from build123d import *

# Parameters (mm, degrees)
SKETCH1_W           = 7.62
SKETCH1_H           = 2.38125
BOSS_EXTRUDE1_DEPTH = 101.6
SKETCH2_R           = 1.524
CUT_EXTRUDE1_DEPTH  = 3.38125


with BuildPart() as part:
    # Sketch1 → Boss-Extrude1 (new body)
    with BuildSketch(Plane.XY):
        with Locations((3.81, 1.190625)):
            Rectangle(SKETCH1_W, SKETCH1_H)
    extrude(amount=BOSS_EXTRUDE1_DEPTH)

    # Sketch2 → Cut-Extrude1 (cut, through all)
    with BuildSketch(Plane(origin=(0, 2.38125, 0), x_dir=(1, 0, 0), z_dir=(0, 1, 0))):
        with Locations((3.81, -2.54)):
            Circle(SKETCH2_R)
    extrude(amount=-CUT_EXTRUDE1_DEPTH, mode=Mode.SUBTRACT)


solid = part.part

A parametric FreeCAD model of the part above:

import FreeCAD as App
import Part
import Sketcher
Q = App.Units.Quantity


def add_polygon(sketch, points):
    """Adds a closed chain of lines whose ends are joined by coincident constraints."""
    first, n = sketch.GeometryCount, len(points)
    for a, b in zip(points, points[1:] + points[:1]):
        sketch.addGeometry(Part.LineSegment(App.Vector(*a, 0), App.Vector(*b, 0)), False)
    for i in range(n):
        sketch.addConstraint(Sketcher.Constraint("Coincident", first + i, 2, first + (i + 1) % n, 1))

doc = App.newDocument("Part")
body = doc.addObject("PartDesign::Body", "Body")

# Sketch on XY plane
sketch1 = body.newObject("Sketcher::SketchObject", "Sketch")
sketch1.AttachmentSupport = (doc.getObject("XY_Plane"), [""])
sketch1.MapMode = "FlatFace"
add_polygon(sketch1, [(0, 2.4), (0, 0), (7.6, 0), (7.6, 2.4)])  # lines 0-3
sketch1.addConstraint([
    Sketcher.Constraint("Vertical", 0),
    Sketcher.Constraint("Horizontal", 1),
    Sketcher.Constraint("Vertical", 2),
    Sketcher.Constraint("Horizontal", 3),
    Sketcher.Constraint("Coincident", 0, 2, -1, 1),
    Sketcher.Constraint("DistanceX", 1, 1, 1, 2, Q("0.3 in")),
    Sketcher.Constraint("DistanceY", 0, 2, 0, 1, Q("0.09375 in")),
])
pad1 = body.newObject("PartDesign::Pad", "Pad")
pad1.Profile = sketch1
pad1.Length = Q("4 in")

# Sketch on XZ plane
sketch2 = body.newObject("Sketcher::SketchObject", "Sketch001")
sketch2.AttachmentSupport = (doc.getObject("XZ_Plane"), [""])
sketch2.MapMode = "FlatFace"
sketch2.AttachmentOffset = App.Placement(App.Vector(0, 0, -0.09375 * 25.4), App.Rotation())
sketch2.addGeometry(Part.Circle(App.Vector(3.8, 2.5, 0), App.Vector(0, 0, 1), 1.5), False)
sketch2.addConstraint([
    Sketcher.Constraint("Diameter", 0, Q("0.12 in")),
    Sketcher.Constraint("DistanceY", -1, 1, 0, 3, Q("0.1 in")),
    Sketcher.Constraint("DistanceX", -1, 1, 0, 3, Q("0.15 in")),
])
pocket1 = body.newObject("PartDesign::Pocket", "Pocket")
pocket1.Profile = sketch2
pocket1.Type = "ThroughAll"
pocket1.Reversed = True

doc.recompute()
